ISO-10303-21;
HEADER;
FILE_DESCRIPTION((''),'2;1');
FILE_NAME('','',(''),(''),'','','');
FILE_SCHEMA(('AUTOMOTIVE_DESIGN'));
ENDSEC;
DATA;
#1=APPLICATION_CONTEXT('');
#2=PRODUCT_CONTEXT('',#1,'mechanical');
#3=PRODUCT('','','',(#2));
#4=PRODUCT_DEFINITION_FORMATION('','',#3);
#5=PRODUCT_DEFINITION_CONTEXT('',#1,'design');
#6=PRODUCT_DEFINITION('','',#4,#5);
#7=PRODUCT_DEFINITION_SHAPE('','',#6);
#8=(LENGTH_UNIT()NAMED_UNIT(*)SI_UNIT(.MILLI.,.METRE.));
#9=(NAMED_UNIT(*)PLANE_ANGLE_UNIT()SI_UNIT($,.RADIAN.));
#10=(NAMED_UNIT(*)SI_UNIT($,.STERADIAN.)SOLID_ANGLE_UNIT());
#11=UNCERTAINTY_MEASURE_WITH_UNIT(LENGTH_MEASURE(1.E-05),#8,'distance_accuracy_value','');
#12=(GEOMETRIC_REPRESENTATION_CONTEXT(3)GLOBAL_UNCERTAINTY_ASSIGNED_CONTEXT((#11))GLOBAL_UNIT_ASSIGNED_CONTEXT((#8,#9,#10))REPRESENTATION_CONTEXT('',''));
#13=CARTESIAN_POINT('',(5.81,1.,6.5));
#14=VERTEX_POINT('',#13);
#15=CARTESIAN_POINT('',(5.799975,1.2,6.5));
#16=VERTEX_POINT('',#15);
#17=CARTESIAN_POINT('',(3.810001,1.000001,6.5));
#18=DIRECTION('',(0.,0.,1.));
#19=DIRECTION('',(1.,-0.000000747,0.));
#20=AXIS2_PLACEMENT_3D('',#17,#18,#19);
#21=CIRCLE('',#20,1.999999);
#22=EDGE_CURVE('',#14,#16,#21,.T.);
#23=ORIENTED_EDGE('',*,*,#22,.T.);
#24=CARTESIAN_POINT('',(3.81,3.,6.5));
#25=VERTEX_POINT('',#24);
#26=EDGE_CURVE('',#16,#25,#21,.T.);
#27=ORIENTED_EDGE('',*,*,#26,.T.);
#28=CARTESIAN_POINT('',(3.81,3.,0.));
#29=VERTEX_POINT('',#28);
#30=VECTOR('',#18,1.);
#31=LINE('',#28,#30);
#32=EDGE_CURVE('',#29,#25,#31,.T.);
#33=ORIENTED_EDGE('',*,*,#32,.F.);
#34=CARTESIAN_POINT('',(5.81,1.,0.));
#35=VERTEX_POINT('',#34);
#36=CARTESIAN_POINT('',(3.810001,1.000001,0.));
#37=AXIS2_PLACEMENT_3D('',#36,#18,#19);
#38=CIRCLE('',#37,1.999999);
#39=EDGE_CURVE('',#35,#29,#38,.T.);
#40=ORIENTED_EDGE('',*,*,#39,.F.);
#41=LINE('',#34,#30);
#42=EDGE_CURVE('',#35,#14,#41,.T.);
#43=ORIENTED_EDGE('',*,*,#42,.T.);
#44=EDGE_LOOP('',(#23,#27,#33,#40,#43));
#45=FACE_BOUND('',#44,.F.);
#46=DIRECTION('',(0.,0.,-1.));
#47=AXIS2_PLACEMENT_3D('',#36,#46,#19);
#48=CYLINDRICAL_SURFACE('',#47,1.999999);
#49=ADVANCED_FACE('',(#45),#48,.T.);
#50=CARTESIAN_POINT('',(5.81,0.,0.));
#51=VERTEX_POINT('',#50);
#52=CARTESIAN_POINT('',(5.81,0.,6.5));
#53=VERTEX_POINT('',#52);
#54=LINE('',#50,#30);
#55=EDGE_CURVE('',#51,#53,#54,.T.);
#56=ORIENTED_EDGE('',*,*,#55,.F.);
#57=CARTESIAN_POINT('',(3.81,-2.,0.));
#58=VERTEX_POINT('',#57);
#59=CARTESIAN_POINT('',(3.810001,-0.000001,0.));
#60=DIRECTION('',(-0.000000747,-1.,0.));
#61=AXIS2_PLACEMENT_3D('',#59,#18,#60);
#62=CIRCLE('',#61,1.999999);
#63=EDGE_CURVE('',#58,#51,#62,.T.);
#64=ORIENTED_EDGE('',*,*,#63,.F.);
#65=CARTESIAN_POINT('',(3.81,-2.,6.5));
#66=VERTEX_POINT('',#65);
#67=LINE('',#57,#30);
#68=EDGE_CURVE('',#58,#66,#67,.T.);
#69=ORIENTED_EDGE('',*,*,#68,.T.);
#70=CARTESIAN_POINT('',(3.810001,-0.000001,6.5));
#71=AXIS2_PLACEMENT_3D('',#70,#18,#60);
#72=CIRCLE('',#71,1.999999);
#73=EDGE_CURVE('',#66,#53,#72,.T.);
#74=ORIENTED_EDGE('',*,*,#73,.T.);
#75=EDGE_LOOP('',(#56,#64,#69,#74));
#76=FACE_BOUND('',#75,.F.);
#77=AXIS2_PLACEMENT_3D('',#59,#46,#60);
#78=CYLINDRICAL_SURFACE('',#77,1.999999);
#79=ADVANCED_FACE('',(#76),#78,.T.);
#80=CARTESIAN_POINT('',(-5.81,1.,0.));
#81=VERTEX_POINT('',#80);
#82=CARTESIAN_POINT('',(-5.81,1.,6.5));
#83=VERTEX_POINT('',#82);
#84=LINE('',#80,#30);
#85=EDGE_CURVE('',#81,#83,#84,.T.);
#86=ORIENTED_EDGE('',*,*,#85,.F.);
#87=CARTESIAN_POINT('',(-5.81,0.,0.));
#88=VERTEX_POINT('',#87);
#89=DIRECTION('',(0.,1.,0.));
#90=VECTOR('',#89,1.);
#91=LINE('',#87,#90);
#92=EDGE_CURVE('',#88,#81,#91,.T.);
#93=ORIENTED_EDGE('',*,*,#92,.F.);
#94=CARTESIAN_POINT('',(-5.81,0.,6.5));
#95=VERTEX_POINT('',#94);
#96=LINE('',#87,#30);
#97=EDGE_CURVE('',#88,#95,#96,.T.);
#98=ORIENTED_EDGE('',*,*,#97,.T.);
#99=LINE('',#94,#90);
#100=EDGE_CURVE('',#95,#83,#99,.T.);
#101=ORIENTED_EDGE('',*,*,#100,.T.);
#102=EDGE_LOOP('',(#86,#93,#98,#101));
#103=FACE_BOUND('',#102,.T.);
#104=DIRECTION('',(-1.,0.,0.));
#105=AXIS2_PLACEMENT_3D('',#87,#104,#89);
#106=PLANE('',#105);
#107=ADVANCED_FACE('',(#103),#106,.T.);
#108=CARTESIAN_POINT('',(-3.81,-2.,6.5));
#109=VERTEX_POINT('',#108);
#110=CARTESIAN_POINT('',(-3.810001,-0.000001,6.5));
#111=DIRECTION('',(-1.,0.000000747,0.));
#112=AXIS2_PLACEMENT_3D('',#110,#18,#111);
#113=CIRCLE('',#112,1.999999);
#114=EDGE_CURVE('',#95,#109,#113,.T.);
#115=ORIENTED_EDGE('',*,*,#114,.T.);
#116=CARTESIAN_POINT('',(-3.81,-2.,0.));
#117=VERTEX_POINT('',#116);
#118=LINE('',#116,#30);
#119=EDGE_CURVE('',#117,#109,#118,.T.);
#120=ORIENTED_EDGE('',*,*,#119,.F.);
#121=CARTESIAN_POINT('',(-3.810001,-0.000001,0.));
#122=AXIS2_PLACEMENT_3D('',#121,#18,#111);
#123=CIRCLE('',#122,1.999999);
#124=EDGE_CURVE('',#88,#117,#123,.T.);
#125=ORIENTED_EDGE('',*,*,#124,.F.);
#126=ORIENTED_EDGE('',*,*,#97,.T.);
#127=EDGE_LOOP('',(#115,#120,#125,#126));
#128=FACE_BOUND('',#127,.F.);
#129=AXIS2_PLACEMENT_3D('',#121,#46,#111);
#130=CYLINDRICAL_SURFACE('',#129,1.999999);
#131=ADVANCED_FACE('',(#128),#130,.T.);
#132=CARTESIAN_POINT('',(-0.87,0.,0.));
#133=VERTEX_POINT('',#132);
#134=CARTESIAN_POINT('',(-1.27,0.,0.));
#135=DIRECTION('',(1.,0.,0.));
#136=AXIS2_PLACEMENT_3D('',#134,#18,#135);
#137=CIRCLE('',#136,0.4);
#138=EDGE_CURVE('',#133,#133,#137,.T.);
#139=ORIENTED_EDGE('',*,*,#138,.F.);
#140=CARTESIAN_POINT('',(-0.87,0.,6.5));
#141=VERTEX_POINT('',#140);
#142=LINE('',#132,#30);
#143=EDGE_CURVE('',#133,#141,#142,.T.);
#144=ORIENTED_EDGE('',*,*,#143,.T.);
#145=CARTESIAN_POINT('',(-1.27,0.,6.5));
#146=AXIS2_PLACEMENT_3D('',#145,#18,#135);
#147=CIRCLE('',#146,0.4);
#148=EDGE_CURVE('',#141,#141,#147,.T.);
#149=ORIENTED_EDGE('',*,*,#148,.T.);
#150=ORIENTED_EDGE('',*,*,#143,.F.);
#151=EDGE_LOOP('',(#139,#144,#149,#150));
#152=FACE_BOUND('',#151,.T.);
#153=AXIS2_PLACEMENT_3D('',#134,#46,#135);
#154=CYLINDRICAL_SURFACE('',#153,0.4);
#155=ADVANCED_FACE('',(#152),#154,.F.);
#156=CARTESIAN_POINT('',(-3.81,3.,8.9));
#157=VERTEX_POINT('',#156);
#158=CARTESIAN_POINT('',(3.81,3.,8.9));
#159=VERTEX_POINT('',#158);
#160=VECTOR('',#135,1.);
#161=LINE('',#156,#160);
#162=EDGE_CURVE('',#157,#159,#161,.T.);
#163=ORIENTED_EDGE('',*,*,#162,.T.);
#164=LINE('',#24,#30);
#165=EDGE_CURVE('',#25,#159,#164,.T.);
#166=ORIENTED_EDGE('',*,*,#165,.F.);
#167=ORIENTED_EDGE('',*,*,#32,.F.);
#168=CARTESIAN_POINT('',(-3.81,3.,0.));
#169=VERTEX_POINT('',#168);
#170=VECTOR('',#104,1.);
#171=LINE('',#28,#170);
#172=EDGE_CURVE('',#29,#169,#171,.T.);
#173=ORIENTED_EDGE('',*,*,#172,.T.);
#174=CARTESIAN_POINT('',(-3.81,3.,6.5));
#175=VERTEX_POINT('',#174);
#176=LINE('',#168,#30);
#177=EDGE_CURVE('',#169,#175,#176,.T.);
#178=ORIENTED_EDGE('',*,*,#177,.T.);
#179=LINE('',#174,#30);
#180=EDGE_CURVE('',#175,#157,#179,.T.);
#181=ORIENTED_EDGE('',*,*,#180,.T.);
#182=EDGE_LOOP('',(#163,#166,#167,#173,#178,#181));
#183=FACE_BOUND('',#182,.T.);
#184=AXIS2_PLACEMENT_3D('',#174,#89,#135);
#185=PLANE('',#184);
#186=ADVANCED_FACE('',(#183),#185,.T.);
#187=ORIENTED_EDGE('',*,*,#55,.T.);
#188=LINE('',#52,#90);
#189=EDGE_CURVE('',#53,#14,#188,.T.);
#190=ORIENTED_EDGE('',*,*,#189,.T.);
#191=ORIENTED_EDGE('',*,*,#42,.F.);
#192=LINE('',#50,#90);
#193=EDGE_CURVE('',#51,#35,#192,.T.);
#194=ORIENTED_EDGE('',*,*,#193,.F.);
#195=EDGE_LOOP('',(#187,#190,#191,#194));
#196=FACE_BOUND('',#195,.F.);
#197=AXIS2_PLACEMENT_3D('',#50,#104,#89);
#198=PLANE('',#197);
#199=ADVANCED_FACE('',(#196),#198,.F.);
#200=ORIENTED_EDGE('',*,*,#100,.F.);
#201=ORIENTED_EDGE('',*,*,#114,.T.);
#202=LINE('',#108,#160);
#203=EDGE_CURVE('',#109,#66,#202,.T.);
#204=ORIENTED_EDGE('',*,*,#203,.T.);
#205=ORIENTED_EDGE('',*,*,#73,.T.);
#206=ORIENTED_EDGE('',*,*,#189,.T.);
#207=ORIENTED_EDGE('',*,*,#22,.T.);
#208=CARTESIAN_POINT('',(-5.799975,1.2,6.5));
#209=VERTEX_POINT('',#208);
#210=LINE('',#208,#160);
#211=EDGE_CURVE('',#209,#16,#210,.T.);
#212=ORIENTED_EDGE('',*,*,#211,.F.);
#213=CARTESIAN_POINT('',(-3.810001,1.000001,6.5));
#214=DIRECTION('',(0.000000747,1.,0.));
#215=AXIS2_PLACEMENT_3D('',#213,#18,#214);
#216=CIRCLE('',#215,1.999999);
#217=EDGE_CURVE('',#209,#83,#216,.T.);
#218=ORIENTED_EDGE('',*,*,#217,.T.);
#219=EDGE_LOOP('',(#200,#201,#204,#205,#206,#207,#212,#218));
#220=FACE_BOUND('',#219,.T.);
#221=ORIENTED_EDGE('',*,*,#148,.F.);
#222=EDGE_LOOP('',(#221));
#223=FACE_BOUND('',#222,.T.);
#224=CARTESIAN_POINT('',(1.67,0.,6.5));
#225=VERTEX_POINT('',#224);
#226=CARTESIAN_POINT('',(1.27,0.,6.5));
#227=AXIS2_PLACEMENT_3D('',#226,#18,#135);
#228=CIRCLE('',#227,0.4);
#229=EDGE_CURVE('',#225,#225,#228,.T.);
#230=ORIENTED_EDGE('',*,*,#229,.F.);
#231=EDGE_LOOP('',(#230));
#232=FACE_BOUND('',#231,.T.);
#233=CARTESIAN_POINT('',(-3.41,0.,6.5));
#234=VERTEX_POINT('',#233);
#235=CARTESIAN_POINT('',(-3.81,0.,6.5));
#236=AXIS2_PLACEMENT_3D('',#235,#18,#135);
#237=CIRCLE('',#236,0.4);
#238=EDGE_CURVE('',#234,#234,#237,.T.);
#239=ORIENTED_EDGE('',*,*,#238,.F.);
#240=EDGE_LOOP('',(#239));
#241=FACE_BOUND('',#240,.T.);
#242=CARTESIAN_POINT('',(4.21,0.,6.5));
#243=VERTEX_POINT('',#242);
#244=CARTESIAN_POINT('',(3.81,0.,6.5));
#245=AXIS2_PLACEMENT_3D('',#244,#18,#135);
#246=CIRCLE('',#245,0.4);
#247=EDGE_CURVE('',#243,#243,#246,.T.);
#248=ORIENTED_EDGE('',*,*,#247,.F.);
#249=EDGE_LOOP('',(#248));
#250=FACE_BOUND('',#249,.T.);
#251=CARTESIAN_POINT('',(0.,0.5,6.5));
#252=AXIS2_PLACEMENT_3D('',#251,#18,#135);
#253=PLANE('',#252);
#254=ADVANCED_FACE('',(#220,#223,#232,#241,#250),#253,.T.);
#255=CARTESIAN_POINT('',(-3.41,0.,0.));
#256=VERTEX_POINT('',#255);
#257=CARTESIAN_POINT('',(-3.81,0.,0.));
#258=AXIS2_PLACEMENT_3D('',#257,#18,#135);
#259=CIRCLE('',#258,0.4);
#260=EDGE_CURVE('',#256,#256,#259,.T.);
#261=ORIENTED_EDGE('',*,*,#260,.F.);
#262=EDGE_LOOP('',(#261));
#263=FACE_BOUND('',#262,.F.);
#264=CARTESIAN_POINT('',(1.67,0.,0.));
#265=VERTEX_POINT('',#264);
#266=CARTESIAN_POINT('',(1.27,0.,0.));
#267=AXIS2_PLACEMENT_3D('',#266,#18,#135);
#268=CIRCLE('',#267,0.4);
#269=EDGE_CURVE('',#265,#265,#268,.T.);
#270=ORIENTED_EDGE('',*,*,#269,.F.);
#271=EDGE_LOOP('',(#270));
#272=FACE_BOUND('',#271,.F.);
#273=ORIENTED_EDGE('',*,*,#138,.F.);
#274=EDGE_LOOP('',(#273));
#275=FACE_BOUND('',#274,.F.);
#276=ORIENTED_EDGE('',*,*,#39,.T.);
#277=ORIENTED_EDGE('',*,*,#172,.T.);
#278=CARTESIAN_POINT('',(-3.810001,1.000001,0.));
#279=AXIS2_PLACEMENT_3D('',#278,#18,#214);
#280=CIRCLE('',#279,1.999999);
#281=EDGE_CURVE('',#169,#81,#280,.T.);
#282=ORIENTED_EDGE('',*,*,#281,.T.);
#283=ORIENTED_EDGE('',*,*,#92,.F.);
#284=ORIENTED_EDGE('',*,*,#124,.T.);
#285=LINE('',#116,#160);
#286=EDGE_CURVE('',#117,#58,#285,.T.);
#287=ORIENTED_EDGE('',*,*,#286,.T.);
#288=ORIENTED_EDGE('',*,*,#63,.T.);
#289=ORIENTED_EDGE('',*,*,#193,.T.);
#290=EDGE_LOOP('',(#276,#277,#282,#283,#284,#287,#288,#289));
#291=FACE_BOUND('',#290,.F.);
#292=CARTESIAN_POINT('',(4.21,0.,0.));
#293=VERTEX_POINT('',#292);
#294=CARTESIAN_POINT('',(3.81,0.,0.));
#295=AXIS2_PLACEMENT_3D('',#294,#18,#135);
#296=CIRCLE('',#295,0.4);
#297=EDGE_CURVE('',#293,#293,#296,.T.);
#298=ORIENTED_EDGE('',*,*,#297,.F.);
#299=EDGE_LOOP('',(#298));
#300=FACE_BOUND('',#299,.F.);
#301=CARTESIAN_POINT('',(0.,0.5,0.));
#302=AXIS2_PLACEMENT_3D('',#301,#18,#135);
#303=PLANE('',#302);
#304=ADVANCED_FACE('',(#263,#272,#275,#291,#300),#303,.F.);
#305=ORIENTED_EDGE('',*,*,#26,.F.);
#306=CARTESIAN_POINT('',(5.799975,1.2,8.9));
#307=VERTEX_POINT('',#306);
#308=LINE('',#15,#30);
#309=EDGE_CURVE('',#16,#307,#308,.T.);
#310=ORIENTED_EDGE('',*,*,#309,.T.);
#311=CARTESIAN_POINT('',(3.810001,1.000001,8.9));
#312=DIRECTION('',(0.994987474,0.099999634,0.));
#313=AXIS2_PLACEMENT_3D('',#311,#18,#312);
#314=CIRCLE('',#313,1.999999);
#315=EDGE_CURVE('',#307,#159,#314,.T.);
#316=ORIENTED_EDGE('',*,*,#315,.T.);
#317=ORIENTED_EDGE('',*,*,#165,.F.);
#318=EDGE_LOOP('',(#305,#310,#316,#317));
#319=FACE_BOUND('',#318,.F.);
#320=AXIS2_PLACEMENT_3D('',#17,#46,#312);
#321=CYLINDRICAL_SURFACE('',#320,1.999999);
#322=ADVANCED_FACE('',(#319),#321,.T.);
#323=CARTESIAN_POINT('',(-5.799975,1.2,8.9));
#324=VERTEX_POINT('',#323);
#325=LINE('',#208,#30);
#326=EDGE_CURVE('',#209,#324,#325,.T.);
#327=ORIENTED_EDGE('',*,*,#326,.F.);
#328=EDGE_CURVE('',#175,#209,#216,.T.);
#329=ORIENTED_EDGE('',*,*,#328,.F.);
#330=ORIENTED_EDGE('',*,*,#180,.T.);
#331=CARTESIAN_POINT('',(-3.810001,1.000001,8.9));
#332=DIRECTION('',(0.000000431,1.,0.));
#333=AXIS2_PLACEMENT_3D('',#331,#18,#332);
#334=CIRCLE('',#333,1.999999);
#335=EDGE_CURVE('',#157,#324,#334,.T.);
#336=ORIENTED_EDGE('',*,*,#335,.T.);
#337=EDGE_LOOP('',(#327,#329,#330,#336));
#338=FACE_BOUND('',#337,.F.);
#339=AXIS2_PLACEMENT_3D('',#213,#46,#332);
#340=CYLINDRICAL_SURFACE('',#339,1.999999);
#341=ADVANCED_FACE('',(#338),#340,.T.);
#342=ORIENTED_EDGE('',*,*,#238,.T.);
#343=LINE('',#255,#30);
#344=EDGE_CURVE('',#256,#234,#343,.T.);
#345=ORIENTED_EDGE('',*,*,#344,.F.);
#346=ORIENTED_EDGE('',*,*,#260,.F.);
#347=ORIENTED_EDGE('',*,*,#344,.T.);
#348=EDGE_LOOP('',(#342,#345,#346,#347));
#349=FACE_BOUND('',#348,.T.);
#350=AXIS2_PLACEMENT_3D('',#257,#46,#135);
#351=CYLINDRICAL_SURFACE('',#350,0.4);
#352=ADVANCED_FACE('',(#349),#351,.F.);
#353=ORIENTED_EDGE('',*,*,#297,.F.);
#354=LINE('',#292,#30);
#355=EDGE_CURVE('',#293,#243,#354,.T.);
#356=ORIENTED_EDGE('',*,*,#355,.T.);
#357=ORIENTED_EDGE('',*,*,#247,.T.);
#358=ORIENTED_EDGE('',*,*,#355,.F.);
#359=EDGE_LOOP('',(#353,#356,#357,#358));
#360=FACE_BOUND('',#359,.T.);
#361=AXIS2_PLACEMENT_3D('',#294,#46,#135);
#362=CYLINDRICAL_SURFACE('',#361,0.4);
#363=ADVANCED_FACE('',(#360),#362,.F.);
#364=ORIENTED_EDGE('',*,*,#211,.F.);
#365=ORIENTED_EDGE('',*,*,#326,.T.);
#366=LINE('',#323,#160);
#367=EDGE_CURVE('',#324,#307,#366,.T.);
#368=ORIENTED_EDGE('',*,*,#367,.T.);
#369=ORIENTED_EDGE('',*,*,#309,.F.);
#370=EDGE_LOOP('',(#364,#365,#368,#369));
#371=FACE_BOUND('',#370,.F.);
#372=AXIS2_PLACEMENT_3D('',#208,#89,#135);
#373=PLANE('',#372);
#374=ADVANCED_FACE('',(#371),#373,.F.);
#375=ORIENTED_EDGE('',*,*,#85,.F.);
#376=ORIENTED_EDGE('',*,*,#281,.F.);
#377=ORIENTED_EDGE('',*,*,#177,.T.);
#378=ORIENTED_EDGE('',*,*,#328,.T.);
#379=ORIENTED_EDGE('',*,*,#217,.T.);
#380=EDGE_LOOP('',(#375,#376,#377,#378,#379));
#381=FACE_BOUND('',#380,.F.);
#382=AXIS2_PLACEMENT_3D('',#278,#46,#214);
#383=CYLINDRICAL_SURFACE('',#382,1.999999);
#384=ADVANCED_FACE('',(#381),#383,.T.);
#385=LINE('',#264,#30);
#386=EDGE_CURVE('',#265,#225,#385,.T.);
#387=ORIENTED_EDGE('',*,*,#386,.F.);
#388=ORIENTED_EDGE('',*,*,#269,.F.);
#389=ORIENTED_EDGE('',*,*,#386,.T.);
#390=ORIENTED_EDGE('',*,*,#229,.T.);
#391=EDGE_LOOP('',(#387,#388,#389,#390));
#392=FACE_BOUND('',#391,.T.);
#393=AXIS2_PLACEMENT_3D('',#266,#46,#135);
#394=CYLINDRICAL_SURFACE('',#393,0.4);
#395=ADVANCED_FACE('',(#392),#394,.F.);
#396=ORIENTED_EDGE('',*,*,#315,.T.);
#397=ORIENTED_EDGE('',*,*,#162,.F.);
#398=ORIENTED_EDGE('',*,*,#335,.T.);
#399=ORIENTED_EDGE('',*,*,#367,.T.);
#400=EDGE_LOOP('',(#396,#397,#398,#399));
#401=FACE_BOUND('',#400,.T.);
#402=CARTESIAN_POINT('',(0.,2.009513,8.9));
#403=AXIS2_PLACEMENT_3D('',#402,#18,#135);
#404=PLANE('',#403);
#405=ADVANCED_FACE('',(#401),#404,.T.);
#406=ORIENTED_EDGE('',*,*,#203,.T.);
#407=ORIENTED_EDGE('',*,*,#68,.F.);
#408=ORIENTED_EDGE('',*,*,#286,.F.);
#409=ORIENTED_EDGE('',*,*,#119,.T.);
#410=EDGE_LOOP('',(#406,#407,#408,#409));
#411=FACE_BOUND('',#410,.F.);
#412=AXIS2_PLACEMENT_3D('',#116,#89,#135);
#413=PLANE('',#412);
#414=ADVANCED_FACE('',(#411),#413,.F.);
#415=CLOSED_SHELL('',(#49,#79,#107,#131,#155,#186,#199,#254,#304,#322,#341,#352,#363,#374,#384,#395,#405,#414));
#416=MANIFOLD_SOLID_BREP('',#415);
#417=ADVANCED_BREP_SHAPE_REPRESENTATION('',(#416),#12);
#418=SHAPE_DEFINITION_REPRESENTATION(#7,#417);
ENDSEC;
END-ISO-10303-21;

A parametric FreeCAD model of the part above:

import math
import FreeCAD as App
import Part
import Sketcher

doc = App.newDocument("Part")
body = doc.addObject("PartDesign::Body", "Body")

# Sketch on XY plane
sketch1 = body.newObject("Sketcher::SketchObject", "Sketch")
sketch1.AttachmentSupport = (doc.getObject("XY_Plane"), [""])
sketch1.MapMode = "FlatFace"
sketch1.addGeometry([
    Part.LineSegment(App.Vector(-3.81, -2, 0), App.Vector(3.81, -2, 0)),  # 0
    Part.ArcOfCircle(Part.Circle(App.Vector(3.81, 0, 0), App.Vector(0, 0, 1), 2), math.radians(-90), math.radians(0)),  # 1
    Part.LineSegment(App.Vector(5.81, 0, 0), App.Vector(5.81, 1, 0)),  # 2
    Part.ArcOfCircle(Part.Circle(App.Vector(3.81, 1, 0), App.Vector(0, 0, 1), 2), math.radians(0), math.radians(90)),  # 3
    Part.LineSegment(App.Vector(3.81, 3, 0), App.Vector(-3.81, 3, 0)),  # 4
    Part.ArcOfCircle(Part.Circle(App.Vector(-3.81, 1, 0), App.Vector(0, 0, 1), 2), math.radians(90), math.radians(180)),  # 5
    Part.LineSegment(App.Vector(-5.81, 1, 0), App.Vector(-5.81, 0, 0)),  # 6
    Part.ArcOfCircle(Part.Circle(App.Vector(-3.81, 0, 0), App.Vector(0, 0, 1), 2), math.radians(180), math.radians(270)),  # 7
    Part.Circle(App.Vector(-3.81, 0, 0), App.Vector(0, 0, 1), 0.4),  # 8
    Part.Circle(App.Vector(-1.27, 0, 0), App.Vector(0, 0, 1), 0.4),  # 9
    Part.Circle(App.Vector(1.27, 0, 0), App.Vector(0, 0, 1), 0.4),  # 10
    Part.Circle(App.Vector(3.81, 0, 0), App.Vector(0, 0, 1), 0.4),  # 11
], False)
sketch1.addConstraint([
    Sketcher.Constraint("Tangent", 0, 2, 1, 1),
    Sketcher.Constraint("Tangent", 1, 2, 2, 1),
    Sketcher.Constraint("Tangent", 2, 2, 3, 1),
    Sketcher.Constraint("Tangent", 3, 2, 4, 1),
    Sketcher.Constraint("Tangent", 4, 2, 5, 1),
    Sketcher.Constraint("Tangent", 5, 2, 6, 1),
    Sketcher.Constraint("Tangent", 6, 2, 7, 1),
    Sketcher.Constraint("Tangent", 7, 2, 0, 1),
    Sketcher.Constraint("Horizontal", 0),
    Sketcher.Constraint("Vertical", 2),
    Sketcher.Constraint("Horizontal", 4),
    Sketcher.Constraint("Vertical", 6),
    Sketcher.Constraint("Coincident", 8, 3, 7, 3),
    Sketcher.Constraint("Coincident", 11, 3, 1, 3),
    Sketcher.Constraint("Equal", 1, 3),
    Sketcher.Constraint("Equal", 3, 5),
    Sketcher.Constraint("Equal", 5, 7),
    Sketcher.Constraint("Equal", 8, 9),
    Sketcher.Constraint("Equal", 9, 10),
    Sketcher.Constraint("Equal", 10, 11),
    Sketcher.Constraint("Symmetric", 1, 3, 7, 3, -1, 1),
    Sketcher.Constraint("Symmetric", 9, 3, 10, 3, -1, 1),
    Sketcher.Constraint("PointOnObject", 9, 3, -1),
    Sketcher.Constraint("Radius", 1, 1.999999),
    Sketcher.Constraint("Diameter", 8, 0.8),
    Sketcher.Constraint("DistanceY", 2, 1, 2, 2, 1.0),
    Sketcher.Constraint("DistanceX", 0, 1, 0, 2, 7.62),
    Sketcher.Constraint("DistanceX", 9, 3, -1, 1, 1.27),
])
pad1 = body.newObject("PartDesign::Pad", "Pad")
pad1.Profile = sketch1
pad1.Length = 6.5

# Sketch on XY plane
sketch2 = body.newObject("Sketcher::SketchObject", "Sketch001")
sketch2.AttachmentSupport = (doc.getObject("XY_Plane"), [""])
sketch2.MapMode = "FlatFace"
sketch2.AttachmentOffset = App.Placement(App.Vector(0, 0, 6.5), App.Rotation())
sketch2.addGeometry([
    Part.ArcOfCircle(Part.Circle(App.Vector(-3.8, 1, 0), App.Vector(0, 0, 1), 2), math.radians(90), math.radians(174)),
    Part.LineSegment(App.Vector(-5.8, 1.2, 0), App.Vector(5.8, 1.2, 0)),
    Part.ArcOfCircle(Part.Circle(App.Vector(3.8, 1, 0), App.Vector(0, 0, 1), 2), math.radians(6), math.radians(90)),
    Part.LineSegment(App.Vector(3.8, 3, 0), App.Vector(-3.8, 3, 0)),
], False)
sketch2.addConstraint([
    Sketcher.Constraint("Coincident", 0, 2, 1, 1),
    Sketcher.Constraint("Coincident", 1, 2, 2, 1),
    Sketcher.Constraint("Tangent", 2, 2, 3, 1),
    Sketcher.Constraint("Tangent", 3, 2, 0, 1),
    Sketcher.Constraint("Horizontal", 1),
    Sketcher.Constraint("Horizontal", 3),
    Sketcher.Constraint("Equal", 0, 2),
    Sketcher.Constraint("Radius", 0, 1.999999),
    Sketcher.Constraint("DistanceY", -1, 1, 0, 3, 1.000001),
    Sketcher.Constraint("DistanceX", 3, 2, 3, 1, 7.62),
    Sketcher.Constraint("DistanceY", -1, 1, 0, 2, 1.2),
    Sketcher.Constraint("DistanceX", 0, 3, -1, 1, 3.810001),
])
pad2 = body.newObject("PartDesign::Pad", "Pad001")
pad2.Profile = sketch2
pad2.Length = 2.4

doc.recompute()
